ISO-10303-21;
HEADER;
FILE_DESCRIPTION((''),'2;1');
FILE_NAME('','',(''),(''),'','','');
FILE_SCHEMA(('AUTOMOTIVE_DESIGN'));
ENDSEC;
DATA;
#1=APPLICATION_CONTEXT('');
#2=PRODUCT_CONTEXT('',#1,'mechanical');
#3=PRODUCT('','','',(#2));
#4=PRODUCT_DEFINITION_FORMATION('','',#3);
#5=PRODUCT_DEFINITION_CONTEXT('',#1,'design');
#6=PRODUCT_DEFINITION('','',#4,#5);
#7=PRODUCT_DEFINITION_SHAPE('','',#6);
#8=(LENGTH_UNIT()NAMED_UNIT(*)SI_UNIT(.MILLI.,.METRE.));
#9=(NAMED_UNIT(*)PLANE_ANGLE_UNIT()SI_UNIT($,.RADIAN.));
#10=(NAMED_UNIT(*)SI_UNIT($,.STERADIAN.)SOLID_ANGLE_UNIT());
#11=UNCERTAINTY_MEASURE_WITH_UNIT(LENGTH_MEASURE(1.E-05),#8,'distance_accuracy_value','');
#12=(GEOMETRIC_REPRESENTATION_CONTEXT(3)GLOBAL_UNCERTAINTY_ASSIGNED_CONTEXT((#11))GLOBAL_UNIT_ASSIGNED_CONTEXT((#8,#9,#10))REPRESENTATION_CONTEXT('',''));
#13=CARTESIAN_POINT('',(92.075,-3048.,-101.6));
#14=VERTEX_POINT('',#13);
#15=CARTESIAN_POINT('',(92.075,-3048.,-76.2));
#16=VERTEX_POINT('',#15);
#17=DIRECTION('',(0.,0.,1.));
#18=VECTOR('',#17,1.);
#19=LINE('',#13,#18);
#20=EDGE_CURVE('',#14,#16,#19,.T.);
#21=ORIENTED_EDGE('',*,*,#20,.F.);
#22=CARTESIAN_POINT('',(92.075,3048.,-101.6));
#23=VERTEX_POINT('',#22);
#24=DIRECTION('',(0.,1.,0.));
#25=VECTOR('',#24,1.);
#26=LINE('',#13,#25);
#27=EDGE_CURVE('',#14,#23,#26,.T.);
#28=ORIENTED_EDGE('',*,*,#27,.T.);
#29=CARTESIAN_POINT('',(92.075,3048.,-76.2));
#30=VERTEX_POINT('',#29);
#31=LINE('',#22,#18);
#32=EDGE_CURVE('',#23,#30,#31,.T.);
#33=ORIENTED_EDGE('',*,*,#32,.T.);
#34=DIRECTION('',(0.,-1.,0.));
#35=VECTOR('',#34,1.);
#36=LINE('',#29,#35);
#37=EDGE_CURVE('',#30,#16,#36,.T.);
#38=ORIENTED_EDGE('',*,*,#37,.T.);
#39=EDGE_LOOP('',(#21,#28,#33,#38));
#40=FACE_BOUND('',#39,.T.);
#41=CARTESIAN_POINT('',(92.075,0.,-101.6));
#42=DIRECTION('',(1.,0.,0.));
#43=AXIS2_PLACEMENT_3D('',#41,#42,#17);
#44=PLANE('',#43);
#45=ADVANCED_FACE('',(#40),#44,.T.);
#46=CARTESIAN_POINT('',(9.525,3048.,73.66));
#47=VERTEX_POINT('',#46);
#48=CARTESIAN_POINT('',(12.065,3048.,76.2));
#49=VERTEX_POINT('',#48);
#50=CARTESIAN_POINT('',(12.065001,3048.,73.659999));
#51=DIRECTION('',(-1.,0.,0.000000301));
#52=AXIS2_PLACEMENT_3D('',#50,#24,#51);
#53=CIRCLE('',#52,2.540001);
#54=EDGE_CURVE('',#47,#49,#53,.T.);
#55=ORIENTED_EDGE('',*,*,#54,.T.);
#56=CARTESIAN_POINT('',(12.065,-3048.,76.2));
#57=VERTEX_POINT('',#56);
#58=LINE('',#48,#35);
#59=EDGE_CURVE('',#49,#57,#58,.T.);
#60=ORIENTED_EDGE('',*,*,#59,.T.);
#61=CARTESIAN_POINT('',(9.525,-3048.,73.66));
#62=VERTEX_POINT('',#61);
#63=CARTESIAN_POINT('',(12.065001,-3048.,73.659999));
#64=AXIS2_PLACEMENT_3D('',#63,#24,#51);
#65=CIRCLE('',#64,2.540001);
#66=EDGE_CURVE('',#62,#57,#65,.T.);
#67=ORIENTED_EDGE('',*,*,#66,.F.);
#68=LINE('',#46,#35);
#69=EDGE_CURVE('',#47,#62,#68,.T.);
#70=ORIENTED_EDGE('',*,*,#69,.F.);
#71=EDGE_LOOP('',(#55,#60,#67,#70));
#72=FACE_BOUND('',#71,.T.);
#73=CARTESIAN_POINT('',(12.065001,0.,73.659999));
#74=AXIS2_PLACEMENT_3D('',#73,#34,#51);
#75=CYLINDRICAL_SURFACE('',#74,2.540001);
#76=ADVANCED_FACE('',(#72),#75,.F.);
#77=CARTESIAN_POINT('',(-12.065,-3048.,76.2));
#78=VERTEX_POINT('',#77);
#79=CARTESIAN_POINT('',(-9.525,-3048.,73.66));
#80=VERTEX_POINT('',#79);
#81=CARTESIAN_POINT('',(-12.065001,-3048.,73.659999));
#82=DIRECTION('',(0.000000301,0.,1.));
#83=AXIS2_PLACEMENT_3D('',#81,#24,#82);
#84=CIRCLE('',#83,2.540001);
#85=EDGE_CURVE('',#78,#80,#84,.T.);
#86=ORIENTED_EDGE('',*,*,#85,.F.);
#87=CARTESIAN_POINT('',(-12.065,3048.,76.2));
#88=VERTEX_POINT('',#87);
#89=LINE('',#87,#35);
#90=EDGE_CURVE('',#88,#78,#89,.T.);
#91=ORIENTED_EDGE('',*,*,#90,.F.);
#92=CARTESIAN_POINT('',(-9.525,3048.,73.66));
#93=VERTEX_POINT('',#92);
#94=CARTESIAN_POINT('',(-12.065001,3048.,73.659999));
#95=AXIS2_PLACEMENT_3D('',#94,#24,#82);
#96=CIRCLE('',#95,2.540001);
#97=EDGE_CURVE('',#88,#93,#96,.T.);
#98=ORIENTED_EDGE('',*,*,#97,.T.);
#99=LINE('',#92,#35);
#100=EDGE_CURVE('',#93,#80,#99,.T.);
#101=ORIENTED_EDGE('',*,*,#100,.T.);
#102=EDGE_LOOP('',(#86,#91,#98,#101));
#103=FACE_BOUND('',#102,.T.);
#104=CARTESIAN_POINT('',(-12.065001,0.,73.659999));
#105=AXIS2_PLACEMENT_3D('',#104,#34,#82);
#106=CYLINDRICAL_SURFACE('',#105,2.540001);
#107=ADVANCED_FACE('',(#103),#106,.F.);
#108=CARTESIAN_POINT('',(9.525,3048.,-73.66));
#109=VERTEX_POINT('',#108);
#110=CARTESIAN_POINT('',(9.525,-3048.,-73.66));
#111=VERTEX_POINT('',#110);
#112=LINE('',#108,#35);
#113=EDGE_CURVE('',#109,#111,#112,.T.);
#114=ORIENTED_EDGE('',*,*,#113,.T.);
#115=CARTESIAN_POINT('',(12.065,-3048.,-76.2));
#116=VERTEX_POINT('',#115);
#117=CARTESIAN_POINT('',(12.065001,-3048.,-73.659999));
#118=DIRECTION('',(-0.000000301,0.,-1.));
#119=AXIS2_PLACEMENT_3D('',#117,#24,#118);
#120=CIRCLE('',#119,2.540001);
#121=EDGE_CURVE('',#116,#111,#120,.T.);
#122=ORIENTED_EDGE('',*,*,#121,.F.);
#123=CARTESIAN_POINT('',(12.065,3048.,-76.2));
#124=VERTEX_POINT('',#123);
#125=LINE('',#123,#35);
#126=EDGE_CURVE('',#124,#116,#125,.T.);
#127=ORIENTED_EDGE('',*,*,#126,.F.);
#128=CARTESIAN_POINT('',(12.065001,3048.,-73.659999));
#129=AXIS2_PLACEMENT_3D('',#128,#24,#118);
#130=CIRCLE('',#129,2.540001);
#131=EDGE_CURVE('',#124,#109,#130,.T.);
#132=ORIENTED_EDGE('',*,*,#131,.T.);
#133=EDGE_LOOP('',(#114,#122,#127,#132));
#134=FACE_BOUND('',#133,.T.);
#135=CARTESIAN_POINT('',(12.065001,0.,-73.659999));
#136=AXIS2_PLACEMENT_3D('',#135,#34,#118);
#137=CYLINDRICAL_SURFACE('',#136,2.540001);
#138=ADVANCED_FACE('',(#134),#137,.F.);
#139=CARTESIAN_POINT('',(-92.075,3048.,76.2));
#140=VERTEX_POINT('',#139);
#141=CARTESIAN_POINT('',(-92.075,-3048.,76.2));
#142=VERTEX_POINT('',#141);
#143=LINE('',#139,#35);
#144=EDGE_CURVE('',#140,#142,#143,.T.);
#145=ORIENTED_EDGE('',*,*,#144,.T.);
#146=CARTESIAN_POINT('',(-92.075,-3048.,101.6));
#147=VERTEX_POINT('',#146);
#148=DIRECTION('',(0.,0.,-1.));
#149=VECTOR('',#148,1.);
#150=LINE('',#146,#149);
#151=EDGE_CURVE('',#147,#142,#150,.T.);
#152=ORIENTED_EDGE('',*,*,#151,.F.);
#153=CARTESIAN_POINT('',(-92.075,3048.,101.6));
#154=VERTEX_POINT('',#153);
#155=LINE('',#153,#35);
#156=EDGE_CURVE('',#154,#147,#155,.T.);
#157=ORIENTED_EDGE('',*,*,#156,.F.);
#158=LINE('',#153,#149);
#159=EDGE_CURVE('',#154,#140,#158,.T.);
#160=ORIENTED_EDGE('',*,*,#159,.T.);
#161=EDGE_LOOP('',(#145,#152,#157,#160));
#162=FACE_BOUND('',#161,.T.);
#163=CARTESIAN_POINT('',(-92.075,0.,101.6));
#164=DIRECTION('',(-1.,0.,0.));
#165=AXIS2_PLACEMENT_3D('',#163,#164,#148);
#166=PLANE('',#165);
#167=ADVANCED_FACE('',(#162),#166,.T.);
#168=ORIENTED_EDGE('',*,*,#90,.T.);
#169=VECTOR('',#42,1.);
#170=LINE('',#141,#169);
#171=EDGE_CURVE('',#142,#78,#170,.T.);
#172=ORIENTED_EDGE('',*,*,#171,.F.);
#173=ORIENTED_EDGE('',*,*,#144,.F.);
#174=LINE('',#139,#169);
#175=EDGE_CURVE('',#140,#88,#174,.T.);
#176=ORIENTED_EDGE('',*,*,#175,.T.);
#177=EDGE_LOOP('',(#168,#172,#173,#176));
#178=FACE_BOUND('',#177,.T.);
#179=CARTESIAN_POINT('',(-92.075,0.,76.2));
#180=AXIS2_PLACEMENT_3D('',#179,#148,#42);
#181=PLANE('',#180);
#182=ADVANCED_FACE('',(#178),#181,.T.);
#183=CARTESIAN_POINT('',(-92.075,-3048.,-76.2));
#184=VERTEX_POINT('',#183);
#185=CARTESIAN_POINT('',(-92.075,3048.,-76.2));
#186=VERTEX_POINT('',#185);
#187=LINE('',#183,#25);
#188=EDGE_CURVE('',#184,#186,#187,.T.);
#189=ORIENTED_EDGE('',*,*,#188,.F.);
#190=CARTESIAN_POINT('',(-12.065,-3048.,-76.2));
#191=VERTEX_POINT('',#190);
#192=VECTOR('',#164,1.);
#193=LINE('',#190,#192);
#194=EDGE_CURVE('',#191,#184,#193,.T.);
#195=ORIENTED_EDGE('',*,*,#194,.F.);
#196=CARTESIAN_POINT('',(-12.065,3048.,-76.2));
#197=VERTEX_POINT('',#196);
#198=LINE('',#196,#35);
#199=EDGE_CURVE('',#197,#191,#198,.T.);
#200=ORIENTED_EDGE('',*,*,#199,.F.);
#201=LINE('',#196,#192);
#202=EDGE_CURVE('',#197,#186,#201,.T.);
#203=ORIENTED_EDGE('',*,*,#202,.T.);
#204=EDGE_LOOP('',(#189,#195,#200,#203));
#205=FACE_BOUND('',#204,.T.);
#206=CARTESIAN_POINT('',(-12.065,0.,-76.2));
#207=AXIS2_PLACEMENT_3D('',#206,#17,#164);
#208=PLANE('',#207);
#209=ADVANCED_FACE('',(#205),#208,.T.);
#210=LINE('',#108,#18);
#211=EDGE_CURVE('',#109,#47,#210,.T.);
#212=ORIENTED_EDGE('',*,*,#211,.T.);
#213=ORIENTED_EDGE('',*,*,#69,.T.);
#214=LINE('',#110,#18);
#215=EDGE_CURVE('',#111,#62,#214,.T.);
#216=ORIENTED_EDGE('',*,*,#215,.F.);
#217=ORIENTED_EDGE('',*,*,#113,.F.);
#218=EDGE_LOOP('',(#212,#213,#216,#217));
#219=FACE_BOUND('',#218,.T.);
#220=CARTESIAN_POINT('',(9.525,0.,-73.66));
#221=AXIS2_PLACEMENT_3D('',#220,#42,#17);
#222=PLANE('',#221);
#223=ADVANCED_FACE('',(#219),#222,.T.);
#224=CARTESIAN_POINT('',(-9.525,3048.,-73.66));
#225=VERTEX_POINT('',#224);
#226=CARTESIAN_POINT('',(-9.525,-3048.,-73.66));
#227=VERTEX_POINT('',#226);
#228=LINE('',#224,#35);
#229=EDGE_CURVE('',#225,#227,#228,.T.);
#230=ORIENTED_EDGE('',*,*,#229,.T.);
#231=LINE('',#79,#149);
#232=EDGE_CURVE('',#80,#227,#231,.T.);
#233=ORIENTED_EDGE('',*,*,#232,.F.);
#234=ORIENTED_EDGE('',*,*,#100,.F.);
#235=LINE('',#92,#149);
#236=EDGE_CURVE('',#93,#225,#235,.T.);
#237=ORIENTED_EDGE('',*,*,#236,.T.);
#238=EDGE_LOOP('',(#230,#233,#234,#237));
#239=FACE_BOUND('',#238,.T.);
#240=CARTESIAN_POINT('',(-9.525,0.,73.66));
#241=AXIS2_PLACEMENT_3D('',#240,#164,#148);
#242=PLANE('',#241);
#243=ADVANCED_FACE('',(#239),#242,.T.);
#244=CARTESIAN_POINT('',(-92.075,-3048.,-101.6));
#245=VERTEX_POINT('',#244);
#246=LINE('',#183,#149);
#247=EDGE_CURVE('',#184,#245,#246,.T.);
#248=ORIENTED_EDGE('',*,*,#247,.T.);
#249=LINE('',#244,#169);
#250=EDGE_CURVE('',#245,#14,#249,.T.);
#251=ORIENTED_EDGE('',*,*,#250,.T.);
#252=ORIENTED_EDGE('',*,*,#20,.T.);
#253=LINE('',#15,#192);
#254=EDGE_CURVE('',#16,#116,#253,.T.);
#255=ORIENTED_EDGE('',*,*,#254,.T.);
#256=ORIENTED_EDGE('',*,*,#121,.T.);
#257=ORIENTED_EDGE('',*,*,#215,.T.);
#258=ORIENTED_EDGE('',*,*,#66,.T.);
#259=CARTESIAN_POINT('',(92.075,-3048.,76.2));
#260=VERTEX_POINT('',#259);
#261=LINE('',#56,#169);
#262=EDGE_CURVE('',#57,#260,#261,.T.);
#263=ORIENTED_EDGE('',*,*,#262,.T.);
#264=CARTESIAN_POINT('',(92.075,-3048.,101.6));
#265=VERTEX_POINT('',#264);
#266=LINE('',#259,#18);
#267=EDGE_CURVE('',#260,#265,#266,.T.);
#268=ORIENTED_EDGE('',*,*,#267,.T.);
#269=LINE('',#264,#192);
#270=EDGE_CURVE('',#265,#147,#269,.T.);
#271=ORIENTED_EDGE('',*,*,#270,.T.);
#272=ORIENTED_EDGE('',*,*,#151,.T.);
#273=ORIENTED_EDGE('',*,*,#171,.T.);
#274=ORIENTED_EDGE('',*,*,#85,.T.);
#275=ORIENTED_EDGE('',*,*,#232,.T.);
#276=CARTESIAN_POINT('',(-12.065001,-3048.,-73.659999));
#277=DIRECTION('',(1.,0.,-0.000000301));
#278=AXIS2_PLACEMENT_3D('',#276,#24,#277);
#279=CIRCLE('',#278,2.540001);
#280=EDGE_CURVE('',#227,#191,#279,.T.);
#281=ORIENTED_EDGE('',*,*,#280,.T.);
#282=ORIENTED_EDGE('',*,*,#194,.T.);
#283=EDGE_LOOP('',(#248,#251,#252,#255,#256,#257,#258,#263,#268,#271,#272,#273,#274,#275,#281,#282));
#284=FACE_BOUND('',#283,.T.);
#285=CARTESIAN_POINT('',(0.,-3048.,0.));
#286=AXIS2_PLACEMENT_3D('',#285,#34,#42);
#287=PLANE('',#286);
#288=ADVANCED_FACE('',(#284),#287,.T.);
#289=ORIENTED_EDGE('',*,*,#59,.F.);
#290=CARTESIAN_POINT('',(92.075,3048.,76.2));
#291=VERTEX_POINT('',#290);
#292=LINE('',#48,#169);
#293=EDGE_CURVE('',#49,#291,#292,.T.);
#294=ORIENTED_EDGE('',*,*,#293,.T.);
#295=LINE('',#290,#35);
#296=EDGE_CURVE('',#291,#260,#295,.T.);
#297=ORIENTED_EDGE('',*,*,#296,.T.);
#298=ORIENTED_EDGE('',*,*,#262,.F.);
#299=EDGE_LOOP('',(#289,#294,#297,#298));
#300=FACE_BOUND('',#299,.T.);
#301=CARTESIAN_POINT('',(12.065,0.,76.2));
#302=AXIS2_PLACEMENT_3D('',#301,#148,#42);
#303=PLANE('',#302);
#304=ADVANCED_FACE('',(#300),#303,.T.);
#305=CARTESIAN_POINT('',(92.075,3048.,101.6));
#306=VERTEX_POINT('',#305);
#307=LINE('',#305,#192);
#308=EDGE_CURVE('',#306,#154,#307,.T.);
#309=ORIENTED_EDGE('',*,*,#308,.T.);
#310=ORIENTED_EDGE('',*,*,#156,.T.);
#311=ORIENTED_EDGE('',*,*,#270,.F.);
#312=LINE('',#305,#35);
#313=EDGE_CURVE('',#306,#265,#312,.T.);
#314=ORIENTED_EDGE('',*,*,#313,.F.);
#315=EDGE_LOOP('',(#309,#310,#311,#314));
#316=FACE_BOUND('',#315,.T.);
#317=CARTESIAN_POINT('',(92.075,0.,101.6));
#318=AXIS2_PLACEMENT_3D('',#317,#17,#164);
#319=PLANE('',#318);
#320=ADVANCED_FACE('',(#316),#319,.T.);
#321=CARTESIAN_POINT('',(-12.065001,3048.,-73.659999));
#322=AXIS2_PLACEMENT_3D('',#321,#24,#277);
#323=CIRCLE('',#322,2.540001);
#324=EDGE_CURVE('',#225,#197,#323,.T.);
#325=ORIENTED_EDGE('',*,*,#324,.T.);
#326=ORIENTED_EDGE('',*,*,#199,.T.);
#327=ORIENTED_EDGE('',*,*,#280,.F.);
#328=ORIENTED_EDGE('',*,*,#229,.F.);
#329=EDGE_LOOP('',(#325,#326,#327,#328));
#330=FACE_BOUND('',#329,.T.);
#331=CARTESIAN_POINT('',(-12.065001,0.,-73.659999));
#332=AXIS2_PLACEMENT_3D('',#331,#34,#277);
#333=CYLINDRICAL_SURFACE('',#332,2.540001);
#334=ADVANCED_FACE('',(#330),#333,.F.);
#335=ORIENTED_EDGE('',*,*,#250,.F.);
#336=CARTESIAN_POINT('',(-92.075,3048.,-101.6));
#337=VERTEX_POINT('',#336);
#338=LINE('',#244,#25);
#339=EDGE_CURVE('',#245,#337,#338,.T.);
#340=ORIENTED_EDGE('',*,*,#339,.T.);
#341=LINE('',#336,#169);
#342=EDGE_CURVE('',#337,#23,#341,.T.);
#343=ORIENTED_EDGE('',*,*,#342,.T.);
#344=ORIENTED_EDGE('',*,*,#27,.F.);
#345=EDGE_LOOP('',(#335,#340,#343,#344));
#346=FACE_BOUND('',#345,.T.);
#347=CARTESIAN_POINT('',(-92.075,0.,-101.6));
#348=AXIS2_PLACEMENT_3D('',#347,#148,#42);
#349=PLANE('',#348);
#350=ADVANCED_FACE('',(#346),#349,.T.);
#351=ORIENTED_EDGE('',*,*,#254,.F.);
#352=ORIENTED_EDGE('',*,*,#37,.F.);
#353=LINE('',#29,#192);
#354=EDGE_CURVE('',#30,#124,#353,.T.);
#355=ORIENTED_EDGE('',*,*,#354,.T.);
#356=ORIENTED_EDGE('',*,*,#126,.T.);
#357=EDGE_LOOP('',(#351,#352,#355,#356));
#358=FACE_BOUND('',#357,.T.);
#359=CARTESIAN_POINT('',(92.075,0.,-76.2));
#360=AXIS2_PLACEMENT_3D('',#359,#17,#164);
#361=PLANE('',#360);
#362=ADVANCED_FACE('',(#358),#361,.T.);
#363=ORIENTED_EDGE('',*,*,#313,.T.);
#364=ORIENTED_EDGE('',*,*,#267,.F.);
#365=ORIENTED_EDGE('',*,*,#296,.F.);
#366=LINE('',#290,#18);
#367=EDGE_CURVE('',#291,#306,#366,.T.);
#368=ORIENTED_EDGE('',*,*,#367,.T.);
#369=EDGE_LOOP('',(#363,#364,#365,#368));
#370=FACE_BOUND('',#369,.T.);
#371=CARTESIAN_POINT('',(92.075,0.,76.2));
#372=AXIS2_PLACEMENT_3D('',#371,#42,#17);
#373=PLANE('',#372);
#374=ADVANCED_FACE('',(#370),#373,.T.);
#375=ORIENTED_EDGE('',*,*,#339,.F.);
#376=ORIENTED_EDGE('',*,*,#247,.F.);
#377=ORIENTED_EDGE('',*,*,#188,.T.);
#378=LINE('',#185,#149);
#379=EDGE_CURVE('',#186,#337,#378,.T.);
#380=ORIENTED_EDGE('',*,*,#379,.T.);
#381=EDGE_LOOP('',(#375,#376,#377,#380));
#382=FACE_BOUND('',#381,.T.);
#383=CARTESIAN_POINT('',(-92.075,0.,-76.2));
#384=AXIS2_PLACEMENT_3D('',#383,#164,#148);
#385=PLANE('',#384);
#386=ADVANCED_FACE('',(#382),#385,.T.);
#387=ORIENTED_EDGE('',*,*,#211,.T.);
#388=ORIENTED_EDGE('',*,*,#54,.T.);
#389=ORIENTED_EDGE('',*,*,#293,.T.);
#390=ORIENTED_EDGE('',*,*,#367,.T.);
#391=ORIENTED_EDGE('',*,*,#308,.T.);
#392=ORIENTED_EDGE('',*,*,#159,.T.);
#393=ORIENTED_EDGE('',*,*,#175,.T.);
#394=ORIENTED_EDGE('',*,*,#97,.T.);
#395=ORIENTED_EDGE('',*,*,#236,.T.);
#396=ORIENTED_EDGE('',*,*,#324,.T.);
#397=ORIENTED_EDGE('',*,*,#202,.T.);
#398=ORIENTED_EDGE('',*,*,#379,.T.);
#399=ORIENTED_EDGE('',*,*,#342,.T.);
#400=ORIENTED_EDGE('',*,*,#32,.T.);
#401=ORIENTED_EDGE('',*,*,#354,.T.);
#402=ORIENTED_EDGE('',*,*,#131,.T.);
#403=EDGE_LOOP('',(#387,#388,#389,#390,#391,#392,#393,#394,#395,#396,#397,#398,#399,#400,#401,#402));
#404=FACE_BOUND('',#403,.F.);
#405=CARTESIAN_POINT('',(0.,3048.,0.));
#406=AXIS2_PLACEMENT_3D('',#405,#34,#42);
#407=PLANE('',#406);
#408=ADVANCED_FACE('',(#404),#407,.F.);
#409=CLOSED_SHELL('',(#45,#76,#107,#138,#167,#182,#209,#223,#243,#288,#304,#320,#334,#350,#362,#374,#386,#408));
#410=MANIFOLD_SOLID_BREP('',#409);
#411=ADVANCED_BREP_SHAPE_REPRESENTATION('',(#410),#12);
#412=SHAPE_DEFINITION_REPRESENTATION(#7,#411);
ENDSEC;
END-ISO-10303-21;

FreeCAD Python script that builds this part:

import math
import FreeCAD as App
import Part
import Sketcher

V = App.Vector
Q = App.Units.Quantity

doc = App.newDocument("Part")
body = doc.addObject("PartDesign::Body", "Body")

# Sketch on XZ plane
sketch1 = doc.addObject("Sketcher::SketchObject", "Sketch")
body.addObject(sketch1)
sketch1.AttachmentSupport = (doc.XZ_Plane, [""])
sketch1.MapMode = "FlatFace"
sketch1.addGeometry([
    Part.LineSegment(V(92.1, -101.6, 0), V(92.1, -76.2, 0)),  # 0
    Part.LineSegment(V(92.1, -76.2, 0), V(12.1, -76.2, 0)),  # 1
    Part.ArcOfCircle(Part.Circle(V(12.1, -73.7, 0), V(0, 0, 1), 2.5), math.radians(-180), math.radians(-90)),  # 2
    Part.LineSegment(V(9.5, -73.7, 0), V(9.5, 73.7, 0)),  # 3
    Part.ArcOfCircle(Part.Circle(V(12.1, 73.7, 0), V(0, 0, 1), 2.5), math.radians(90), math.radians(180)),  # 4
    Part.LineSegment(V(12.1, 76.2, 0), V(92.1, 76.2, 0)),  # 5
    Part.LineSegment(V(92.1, 76.2, 0), V(92.1, 101.6, 0)),  # 6
    Part.LineSegment(V(92.1, 101.6, 0), V(-92.1, 101.6, 0)),  # 7
    Part.LineSegment(V(-92.1, 101.6, 0), V(-92.1, 76.2, 0)),  # 8
    Part.LineSegment(V(-92.1, 76.2, 0), V(-12.1, 76.2, 0)),  # 9
    Part.ArcOfCircle(Part.Circle(V(-12.1, 73.7, 0), V(0, 0, 1), 2.5), math.radians(0), math.radians(90)),  # 10
    Part.LineSegment(V(-9.5, 73.7, 0), V(-9.5, -73.7, 0)),  # 11
    Part.ArcOfCircle(Part.Circle(V(-12.1, -73.7, 0), V(0, 0, 1), 2.5), math.radians(-90), math.radians(0)),  # 12
    Part.LineSegment(V(-12.1, -76.2, 0), V(-92.1, -76.2, 0)),  # 13
    Part.LineSegment(V(-92.1, -76.2, 0), V(-92.1, -101.6, 0)),  # 14
    Part.LineSegment(V(-92.1, -101.6, 0), V(92.1, -101.6, 0)),  # 15
], False)
sketch1.addConstraint([
    Sketcher.Constraint("Coincident", 0, 2, 1, 1),
    Sketcher.Constraint("Tangent", 1, 2, 2, 2),
    Sketcher.Constraint("Tangent", 2, 1, 3, 1),
    Sketcher.Constraint("Tangent", 3, 2, 4, 2),
    Sketcher.Constraint("Tangent", 4, 1, 5, 1),
    Sketcher.Constraint("Coincident", 5, 2, 6, 1),
    Sketcher.Constraint("Coincident", 6, 2, 7, 1),
    Sketcher.Constraint("Coincident", 7, 2, 8, 1),
    Sketcher.Constraint("Coincident", 8, 2, 9, 1),
    Sketcher.Constraint("Tangent", 9, 2, 10, 2),
    Sketcher.Constraint("Tangent", 10, 1, 11, 1),
    Sketcher.Constraint("Tangent", 11, 2, 12, 2),
    Sketcher.Constraint("Tangent", 12, 1, 13, 1),
    Sketcher.Constraint("Coincident", 13, 2, 14, 1),
    Sketcher.Constraint("Coincident", 14, 2, 15, 1),
    Sketcher.Constraint("Coincident", 15, 2, 0, 1),
    Sketcher.Constraint("Vertical", 0),
    Sketcher.Constraint("Horizontal", 1),
    Sketcher.Constraint("Vertical", 3),
    Sketcher.Constraint("Horizontal", 5),
    Sketcher.Constraint("Vertical", 6),
    Sketcher.Constraint("Horizontal", 7),
    Sketcher.Constraint("Vertical", 8),
    Sketcher.Constraint("Horizontal", 9),
    Sketcher.Constraint("Vertical", 11),
    Sketcher.Constraint("Horizontal", 13),
    Sketcher.Constraint("Vertical", 14),
    Sketcher.Constraint("Horizontal", 15),
    Sketcher.Constraint("Equal", 2, 4),
    Sketcher.Constraint("Equal", 4, 10),
    Sketcher.Constraint("Equal", 10, 12),
    Sketcher.Constraint("Symmetric", 2, 3, 10, 3, -1, 1),
    Sketcher.Constraint("Symmetric", 5, 2, 13, 2, -1, 1),
    Sketcher.Constraint("Symmetric", 7, 2, 15, 2, -1, 1),
    Sketcher.Constraint("Symmetric", 5, 2, 8, 2, -2),
    Sketcher.Constraint("Radius", 2, Q("0.1 in")),
    Sketcher.Constraint("DistanceY", 0, 1, 0, 2, Q("1 in")),
    Sketcher.Constraint("DistanceY", 3, 1, 3, 2, Q("5.8 in")),
    Sketcher.Constraint("DistanceX", 7, 2, 3, 2, Q("4 in")),
    Sketcher.Constraint("DistanceX", 1, 2, 1, 1, Q("3.15 in")),
])
pad1 = doc.addObject("PartDesign::Pad", "Pad")
body.addObject(pad1)
pad1.Profile = sketch1
pad1.Length = Q("240 in")
pad1.Midplane = True

doc.recompute()
